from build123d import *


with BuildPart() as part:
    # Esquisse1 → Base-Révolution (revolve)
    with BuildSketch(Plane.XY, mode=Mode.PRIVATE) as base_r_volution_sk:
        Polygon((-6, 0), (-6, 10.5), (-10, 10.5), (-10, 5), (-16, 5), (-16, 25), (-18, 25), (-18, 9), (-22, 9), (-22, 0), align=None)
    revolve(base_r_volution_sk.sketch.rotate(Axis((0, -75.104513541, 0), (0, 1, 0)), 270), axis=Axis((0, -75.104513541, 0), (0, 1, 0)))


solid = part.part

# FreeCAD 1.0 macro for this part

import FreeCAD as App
import Part
import Sketcher

V = App.Vector
Q = App.Units.Quantity


def add_polygon(sketch, points):
    """Adds a closed chain of lines whose ends are joined by coincident constraints."""
    first, n = sketch.GeometryCount, len(points)
    for a, b in zip(points, points[1:] + points[:1]):
        sketch.addGeometry(Part.LineSegment(App.Vector(*a, 0), App.Vector(*b, 0)), False)
    for i in range(n):
        sketch.addConstraint(Sketcher.Constraint("Coincident", first + i, 2, first + (i + 1) % n, 1))

doc = App.newDocument("Part")
params = doc.addObject("Spreadsheet::Sheet", "Params")
for row, (alias, value) in enumerate([
    ("sketch1_width", "4 mm"),
    ("sketch1_width2", "6 mm"),
    ("sketch1_width3", "2 mm"),
    ("sketch1_height", "20 mm"),
    ("sketch1_height2", "9 mm"),
    ("revolution_angle", "360 deg"),
], start=1):
    params.set(f"A{row}", alias)
    params.set(f"B{row}", "=" + value)
    params.setAlias(f"B{row}", alias)

body = doc.addObject("PartDesign::Body", "Body")

sketch1 = doc.addObject("Sketcher::SketchObject", "Sketch")
body.addObject(sketch1)
sketch1.AttachmentSupport = (doc.XY_Plane, [""])
sketch1.MapMode = "FlatFace"
add_polygon(sketch1, [(-6, 0), (-6, 10.5), (-10, 10.5), (-10, 5), (-16, 5), (-16, 25), (-18, 25), (-18, 9), (-22, 9), (-22, 0)])
sketch1.addConstraint([
    Sketcher.Constraint("Vertical", 0),
    Sketcher.Constraint("Horizontal", 1),
    Sketcher.Constraint("Vertical", 2),
    Sketcher.Constraint("Horizontal", 3),
    Sketcher.Constraint("Vertical", 4),
    Sketcher.Constraint("Horizontal", 5),
    Sketcher.Constraint("Vertical", 6),
    Sketcher.Constraint("Horizontal", 7),
    Sketcher.Constraint("Vertical", 8),
    Sketcher.Constraint("Horizontal", 9),
    Sketcher.Constraint("PointOnObject", 8, 2, -1),
    Sketcher.Constraint("Equal", 1, 7),
    Sketcher.Constraint("Equal", 9, 6),
    Sketcher.Constraint("DistanceX", 1, 2, 1, 1, Q("4 mm")),
    Sketcher.Constraint("DistanceX", 3, 2, 3, 1, Q("6 mm")),
    Sketcher.Constraint("DistanceX", 5, 2, 5, 1, Q("2 mm")),
    Sketcher.Constraint("DistanceY", 4, 1, 4, 2, Q("20 mm")),
    Sketcher.Constraint("DistanceY", 8, 2, 8, 1, Q("9 mm")),
    Sketcher.Constraint("DistanceY", 0, 1, 0, 2, Q("10.5 mm")),
    Sketcher.Constraint("DistanceX", 0, 2, -1, 1, Q("6 mm")),
])
sketch1.setExpression("Constraints[23]", "Params.sketch1_width")
sketch1.setExpression("Constraints[24]", "Params.sketch1_width2")
sketch1.setExpression("Constraints[25]", "Params.sketch1_width3")
sketch1.setExpression("Constraints[26]", "Params.sketch1_height")
sketch1.setExpression("Constraints[27]", "Params.sketch1_height2")
revolution = doc.addObject("PartDesign::Revolution", "Revolution")
body.addObject(revolution)
revolution.Profile = sketch1
revolution.ReferenceAxis = (sketch1, ["V_Axis"])
revolution.setExpression("Angle", "Params.revolution_angle")

doc.recompute()
